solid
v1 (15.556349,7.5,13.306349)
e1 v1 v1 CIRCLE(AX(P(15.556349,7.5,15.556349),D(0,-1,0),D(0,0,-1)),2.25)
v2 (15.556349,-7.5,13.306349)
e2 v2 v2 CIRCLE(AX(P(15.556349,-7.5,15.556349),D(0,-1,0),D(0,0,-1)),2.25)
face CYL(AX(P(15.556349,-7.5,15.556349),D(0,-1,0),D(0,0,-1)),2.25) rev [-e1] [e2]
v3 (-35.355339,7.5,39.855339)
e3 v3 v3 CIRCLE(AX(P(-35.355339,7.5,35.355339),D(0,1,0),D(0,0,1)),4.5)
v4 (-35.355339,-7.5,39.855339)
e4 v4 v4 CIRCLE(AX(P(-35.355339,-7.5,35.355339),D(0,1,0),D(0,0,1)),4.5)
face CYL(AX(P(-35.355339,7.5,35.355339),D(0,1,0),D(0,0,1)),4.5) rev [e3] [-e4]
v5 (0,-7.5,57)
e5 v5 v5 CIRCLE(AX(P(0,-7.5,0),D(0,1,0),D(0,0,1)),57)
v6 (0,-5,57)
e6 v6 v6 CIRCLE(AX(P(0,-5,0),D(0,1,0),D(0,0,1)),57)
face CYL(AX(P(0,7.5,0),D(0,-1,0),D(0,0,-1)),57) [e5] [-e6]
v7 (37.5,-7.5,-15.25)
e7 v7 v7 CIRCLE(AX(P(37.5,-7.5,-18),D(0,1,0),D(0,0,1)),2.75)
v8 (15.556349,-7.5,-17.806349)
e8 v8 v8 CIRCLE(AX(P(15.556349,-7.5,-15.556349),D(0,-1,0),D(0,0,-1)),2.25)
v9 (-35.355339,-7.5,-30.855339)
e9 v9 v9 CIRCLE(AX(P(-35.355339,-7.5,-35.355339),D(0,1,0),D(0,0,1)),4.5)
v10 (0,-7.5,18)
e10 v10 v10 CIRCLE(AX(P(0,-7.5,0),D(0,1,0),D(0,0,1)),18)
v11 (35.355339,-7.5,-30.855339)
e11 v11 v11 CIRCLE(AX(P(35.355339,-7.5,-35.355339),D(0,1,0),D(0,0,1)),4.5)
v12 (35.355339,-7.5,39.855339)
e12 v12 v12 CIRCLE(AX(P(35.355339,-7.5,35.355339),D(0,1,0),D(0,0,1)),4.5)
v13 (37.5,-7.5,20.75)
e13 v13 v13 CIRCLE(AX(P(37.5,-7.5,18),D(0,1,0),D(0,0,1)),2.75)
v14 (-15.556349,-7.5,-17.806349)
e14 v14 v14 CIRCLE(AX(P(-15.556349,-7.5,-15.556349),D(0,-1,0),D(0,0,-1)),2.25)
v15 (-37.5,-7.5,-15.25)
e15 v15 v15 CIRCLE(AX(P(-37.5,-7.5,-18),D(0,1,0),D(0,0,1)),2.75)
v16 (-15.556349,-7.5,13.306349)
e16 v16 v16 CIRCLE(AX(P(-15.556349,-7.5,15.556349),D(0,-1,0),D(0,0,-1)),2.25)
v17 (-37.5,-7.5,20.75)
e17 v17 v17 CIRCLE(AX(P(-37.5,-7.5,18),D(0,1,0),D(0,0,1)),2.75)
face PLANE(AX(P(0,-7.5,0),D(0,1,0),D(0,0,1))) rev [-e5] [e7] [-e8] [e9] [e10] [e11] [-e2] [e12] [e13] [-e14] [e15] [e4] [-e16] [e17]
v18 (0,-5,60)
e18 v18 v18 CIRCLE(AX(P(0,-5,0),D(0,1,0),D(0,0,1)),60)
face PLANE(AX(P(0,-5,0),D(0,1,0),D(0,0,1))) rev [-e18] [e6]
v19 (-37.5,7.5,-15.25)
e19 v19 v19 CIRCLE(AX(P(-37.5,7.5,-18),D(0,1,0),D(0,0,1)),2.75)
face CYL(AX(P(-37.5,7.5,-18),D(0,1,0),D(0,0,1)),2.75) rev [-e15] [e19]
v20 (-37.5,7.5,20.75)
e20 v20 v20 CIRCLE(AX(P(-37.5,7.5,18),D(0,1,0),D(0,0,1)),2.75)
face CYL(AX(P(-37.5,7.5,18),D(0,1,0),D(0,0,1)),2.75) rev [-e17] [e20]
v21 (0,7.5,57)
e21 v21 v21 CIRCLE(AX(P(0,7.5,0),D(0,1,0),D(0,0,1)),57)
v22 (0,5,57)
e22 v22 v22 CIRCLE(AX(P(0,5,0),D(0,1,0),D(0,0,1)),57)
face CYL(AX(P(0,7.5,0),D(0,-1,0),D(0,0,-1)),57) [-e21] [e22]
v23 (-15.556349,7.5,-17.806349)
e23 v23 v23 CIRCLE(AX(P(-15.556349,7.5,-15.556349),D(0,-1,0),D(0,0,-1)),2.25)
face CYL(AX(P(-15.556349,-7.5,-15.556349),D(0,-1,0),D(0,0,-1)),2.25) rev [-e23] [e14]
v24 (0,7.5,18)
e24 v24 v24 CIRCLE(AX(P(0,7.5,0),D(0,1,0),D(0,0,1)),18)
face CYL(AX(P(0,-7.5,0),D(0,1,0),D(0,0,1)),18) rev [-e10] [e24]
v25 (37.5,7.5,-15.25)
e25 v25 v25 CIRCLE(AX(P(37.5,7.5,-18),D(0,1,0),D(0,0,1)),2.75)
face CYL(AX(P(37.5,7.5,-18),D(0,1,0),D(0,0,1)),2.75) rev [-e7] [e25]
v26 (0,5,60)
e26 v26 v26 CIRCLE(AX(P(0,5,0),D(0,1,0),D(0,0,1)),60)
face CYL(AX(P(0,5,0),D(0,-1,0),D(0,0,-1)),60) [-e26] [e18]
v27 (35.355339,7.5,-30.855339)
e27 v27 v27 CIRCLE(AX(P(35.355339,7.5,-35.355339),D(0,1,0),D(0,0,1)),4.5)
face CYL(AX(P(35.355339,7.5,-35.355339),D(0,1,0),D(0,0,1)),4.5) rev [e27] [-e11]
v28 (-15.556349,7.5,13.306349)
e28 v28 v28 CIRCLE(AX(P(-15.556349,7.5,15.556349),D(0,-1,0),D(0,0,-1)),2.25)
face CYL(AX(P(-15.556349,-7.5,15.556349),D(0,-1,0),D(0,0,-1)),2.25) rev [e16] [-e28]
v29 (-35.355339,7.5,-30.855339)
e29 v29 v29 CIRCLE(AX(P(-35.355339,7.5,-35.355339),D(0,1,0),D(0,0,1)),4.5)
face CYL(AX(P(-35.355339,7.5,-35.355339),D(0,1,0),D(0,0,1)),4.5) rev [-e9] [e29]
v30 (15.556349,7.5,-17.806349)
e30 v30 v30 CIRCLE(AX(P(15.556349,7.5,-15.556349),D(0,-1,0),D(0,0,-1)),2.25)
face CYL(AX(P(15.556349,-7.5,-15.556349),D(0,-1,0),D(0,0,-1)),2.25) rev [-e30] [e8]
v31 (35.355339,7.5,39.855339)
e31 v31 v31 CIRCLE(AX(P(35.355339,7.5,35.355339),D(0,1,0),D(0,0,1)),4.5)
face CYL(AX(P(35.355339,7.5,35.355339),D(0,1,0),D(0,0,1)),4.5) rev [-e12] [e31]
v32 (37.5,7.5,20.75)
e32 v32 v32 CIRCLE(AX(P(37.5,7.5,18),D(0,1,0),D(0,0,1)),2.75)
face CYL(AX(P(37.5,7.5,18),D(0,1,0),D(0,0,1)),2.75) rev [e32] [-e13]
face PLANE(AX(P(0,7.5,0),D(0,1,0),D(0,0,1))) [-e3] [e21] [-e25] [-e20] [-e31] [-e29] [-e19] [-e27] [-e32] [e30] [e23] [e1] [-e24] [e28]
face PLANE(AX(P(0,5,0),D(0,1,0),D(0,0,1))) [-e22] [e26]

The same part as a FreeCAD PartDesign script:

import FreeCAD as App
import Part
import Sketcher

V = App.Vector
Q = App.Units.Quantity

doc = App.newDocument("Part")
body = doc.addObject("PartDesign::Body", "Body")

# Sketch on XZ plane
sketch1 = body.newObject("Sketcher::SketchObject", "Sketch")
sketch1.AttachmentSupport = (doc.getObject("XZ_Plane"), [""])
sketch1.MapMode = "FlatFace"
sketch1.addGeometry(Part.Circle(V(0, 0, 0), V(0, 0, 1), 57), False)
sketch1.addConstraint(Sketcher.Constraint("Coincident", 0, 3, -1, 1))
sketch1.addConstraint(Sketcher.Constraint("Diameter", 0, Q("114 mm")))
pad1 = body.newObject("PartDesign::Pad", "Pad")
pad1.Profile = sketch1
pad1.Length = 15
pad1.Midplane = True

# Sketch on XZ plane
sketch2 = body.newObject("Sketcher::SketchObject", "Sketch001")
sketch2.AttachmentSupport = (doc.getObject("XZ_Plane"), [""])
sketch2.MapMode = "FlatFace"
sketch2.addGeometry(Part.Circle(V(0, 0, 0), V(0, 0, 1), 60), False)
sketch2.addGeometry(Part.Circle(V(0, 0, 0), V(0, 0, 1), 57), False)
sketch2.addConstraint(Sketcher.Constraint("Coincident", 0, 3, -1, 1))
sketch2.addConstraint(Sketcher.Constraint("Coincident", 1, 3, -1, 1))
sketch2.addConstraint(Sketcher.Constraint("Diameter", 0, Q("120 mm")))
sketch2.addConstraint(Sketcher.Constraint("Diameter", 1, Q("114 mm")))
pad2 = body.newObject("PartDesign::Pad", "Pad001")
pad2.Profile = sketch2
pad2.Length = 10
pad2.Midplane = True

# Sketch on XZ plane
sketch3 = body.newObject("Sketcher::SketchObject", "Sketch002")
sketch3.AttachmentSupport = (doc.getObject("XZ_Plane"), [""])
sketch3.MapMode = "FlatFace"
sketch3.addGeometry(Part.Circle(V(0, 0, 0), V(0, 0, 1), 18), False)
sketch3.addConstraint(Sketcher.Constraint("Coincident", 0, 3, -1, 1))
sketch3.addConstraint(Sketcher.Constraint("Diameter", 0, Q("36 mm")))
pocket1 = body.newObject("PartDesign::Pocket", "Pocket")
pocket1.Profile = sketch3
pocket1.Type = "ThroughAll"
pocket1.Midplane = True

# Sketch on XZ plane
sketch4 = body.newObject("Sketcher::SketchObject", "Sketch003")
sketch4.AttachmentSupport = (doc.getObject("XZ_Plane"), [""])
sketch4.MapMode = "FlatFace"
sketch4.AttachmentOffset = App.Placement(V(0, 0, 7.5), App.Rotation())
sketch4.addGeometry(Part.Circle(V(-15.6, -15.6, 0), V(0, 0, 1), 2.2), False)
sketch4.addConstraint(Sketcher.Constraint("Diameter", 0, Q("4.5 mm")))
sketch4.addConstraint(Sketcher.Constraint("DistanceX", 0, 3, -1, 1, Q("15.556349 mm")))
sketch4.addConstraint(Sketcher.Constraint("DistanceY", 0, 3, -1, 1, Q("15.556349 mm")))
doc.recompute()
hole = body.newObject("PartDesign::Hole", "Hole")
hole.Profile = sketch4
hole.ThreadType = "None"
hole.Diameter = 4.5
hole.DepthType = "ThroughAll"
doc.recompute()

polarpattern = body.newObject("PartDesign::PolarPattern", "PolarPattern")
polarpattern.Originals = [hole]
polarpattern.Axis = (doc.getObject("Y_Axis"), [""])
polarpattern.Angle = 360
polarpattern.Occurrences = 4
body.Tip = polarpattern

# Sketch on XZ plane
sketch5 = body.newObject("Sketcher::SketchObject", "Sketch004")
sketch5.AttachmentSupport = (doc.getObject("XZ_Plane"), [""])
sketch5.MapMode = "FlatFace"
sketch5.AttachmentOffset = App.Placement(V(0, 0, -7.5), App.Rotation())
sketch5.addGeometry(Part.Circle(V(-37.5, -18, 0), V(0, 0, 1), 2.8), False)
sketch5.addGeometry(Part.Circle(V(-37.5, 18, 0), V(0, 0, 1), 2.8), False)
sketch5.addGeometry(Part.Circle(V(37.5, 18, 0), V(0, 0, 1), 2.8), False)
sketch5.addGeometry(Part.Circle(V(37.5, -18, 0), V(0, 0, 1), 2.8), False)
sketch5.addConstraint(Sketcher.Constraint("Equal", 0, 1))
sketch5.addConstraint(Sketcher.Constraint("Equal", 1, 2))
sketch5.addConstraint(Sketcher.Constraint("Equal", 2, 3))
sketch5.addConstraint(Sketcher.Constraint("Symmetric", 0, 3, 2, 3, -1, 1))
sketch5.addConstraint(Sketcher.Constraint("Symmetric", 1, 3, 3, 3, -1, 1))
sketch5.addConstraint(Sketcher.Constraint("Symmetric", 1, 3, 2, 3, -2))
sketch5.addConstraint(Sketcher.Constraint("Diameter", 0, Q("5.5 mm")))
sketch5.addConstraint(Sketcher.Constraint("DistanceY", 0, 3, -1, 1, Q("18 mm")))
sketch5.addConstraint(Sketcher.Constraint("DistanceX", 1, 3, 2, 3, Q("75 mm")))
doc.recompute()
hole2 = body.newObject("PartDesign::Hole", "Hole001")
hole2.Profile = sketch5
hole2.ThreadType = "None"
hole2.Diameter = 5.5
hole2.DepthType = "ThroughAll"
hole2.Reversed = True

# Sketch on XZ plane
sketch6 = body.newObject("Sketcher::SketchObject", "Sketch005")
sketch6.AttachmentSupport = (doc.getObject("XZ_Plane"), [""])
sketch6.MapMode = "FlatFace"
sketch6.AttachmentOffset = App.Placement(V(0, 0, -7.5), App.Rotation())
sketch6.addGeometry(Part.Circle(V(-35.4, 35.4, 0), V(0, 0, 1), 4.5), False)
sketch6.addConstraint(Sketcher.Constraint("Diameter", 0, Q("9 mm")))
sketch6.addConstraint(Sketcher.Constraint("DistanceX", 0, 3, -1, 1, Q("35.355339 mm")))
sketch6.addConstraint(Sketcher.Constraint("DistanceY", -1, 1, 0, 3, Q("35.355339 mm")))
doc.recompute()
hole3 = body.newObject("PartDesign::Hole", "Hole002")
hole3.Profile = sketch6
hole3.ThreadType = "None"
hole3.Diameter = 9
hole3.DepthType = "ThroughAll"
hole3.Reversed = True
doc.recompute()

polarpattern2 = body.newObject("PartDesign::PolarPattern", "PolarPattern001")
polarpattern2.Originals = [hole3]
polarpattern2.Axis = (doc.getObject("Y_Axis"), [""])
polarpattern2.Angle = 360
polarpattern2.Occurrences = 4
body.Tip = polarpattern2

doc.recompute()
